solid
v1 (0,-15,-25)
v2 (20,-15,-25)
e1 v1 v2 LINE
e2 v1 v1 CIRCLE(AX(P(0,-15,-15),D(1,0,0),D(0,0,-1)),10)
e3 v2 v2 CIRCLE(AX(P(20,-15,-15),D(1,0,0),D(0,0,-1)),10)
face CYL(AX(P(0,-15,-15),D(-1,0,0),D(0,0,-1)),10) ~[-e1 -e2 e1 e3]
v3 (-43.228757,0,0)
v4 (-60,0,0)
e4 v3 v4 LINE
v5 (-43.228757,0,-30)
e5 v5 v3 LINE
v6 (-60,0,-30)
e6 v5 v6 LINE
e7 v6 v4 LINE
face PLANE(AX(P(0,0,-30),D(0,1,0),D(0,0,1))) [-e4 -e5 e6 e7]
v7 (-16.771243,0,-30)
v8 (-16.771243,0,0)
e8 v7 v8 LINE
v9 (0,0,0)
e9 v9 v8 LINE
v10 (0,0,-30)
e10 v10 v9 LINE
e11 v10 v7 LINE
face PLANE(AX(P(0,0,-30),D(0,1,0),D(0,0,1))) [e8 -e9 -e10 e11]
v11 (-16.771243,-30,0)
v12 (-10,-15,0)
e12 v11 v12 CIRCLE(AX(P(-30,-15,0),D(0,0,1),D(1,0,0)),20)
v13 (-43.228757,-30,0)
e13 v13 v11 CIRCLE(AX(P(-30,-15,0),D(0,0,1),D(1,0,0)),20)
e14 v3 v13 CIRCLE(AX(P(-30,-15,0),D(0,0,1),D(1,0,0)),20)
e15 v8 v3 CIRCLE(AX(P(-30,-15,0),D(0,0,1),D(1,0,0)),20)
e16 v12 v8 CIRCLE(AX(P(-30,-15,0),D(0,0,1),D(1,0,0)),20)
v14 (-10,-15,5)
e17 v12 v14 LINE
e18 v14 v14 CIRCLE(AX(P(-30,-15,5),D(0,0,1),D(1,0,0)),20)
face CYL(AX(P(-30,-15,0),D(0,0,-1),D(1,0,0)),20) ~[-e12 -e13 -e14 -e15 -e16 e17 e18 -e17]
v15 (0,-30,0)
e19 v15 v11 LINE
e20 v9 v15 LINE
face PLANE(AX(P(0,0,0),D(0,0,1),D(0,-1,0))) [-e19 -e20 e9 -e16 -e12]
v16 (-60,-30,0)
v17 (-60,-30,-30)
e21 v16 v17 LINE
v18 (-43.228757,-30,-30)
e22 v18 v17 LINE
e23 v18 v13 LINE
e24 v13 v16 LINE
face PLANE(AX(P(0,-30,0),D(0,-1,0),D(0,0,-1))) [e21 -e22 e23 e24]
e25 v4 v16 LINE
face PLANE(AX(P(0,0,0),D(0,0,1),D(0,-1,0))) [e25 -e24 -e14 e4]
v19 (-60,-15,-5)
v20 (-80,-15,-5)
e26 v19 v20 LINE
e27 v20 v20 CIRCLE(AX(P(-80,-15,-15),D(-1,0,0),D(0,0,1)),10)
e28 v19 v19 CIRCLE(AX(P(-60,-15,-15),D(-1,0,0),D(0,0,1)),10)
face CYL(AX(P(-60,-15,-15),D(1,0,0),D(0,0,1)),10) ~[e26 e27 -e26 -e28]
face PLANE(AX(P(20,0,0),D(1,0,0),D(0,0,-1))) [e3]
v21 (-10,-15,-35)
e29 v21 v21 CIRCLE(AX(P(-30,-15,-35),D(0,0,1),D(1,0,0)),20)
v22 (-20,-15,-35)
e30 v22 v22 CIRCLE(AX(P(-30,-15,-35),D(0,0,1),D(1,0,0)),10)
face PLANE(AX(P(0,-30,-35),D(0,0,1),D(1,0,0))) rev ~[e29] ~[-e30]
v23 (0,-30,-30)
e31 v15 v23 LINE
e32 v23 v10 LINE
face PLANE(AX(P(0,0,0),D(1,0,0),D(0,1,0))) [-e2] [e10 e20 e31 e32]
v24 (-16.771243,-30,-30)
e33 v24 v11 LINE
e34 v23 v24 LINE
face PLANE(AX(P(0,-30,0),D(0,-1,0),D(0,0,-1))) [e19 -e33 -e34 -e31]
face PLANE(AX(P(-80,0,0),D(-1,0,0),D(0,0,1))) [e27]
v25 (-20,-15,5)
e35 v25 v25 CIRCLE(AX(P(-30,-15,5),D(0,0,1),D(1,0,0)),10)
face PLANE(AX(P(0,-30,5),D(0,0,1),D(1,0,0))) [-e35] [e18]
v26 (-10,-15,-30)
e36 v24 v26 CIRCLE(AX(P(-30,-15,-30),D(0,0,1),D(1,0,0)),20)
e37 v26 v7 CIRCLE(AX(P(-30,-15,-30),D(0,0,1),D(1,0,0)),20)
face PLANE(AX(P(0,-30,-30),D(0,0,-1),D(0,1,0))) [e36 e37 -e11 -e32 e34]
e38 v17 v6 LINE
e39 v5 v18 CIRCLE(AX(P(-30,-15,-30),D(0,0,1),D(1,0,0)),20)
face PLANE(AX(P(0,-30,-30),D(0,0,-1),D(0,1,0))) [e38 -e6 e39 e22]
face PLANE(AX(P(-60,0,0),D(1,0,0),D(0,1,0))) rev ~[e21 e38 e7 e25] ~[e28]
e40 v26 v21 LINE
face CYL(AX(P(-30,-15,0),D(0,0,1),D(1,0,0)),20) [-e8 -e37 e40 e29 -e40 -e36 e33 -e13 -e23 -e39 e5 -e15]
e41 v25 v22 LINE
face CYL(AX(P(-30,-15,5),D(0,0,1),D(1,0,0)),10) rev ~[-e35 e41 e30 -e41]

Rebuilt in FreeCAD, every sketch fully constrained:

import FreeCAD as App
import Part
import Sketcher

V = App.Vector


def add_polygon(sketch, points):
    """Adds a closed chain of lines whose ends are joined by coincident constraints."""
    first, n = sketch.GeometryCount, len(points)
    for a, b in zip(points, points[1:] + points[:1]):
        sketch.addGeometry(Part.LineSegment(App.Vector(*a, 0), App.Vector(*b, 0)), False)
    for i in range(n):
        sketch.addConstraint(Sketcher.Constraint("Coincident", first + i, 2, first + (i + 1) % n, 1))

doc = App.newDocument("Part")
body = doc.addObject("PartDesign::Body", "Body")

sketch1 = body.newObject("Sketcher::SketchObject", "Sketch")
sketch1.AttachmentSupport = (doc.getObject("YZ_Plane"), [""])
sketch1.MapMode = "FlatFace"
add_polygon(sketch1, [(0, -30), (0, 0), (-30, 0), (-30, -30)])
sketch1.addConstraint(Sketcher.Constraint("Vertical", 0))
sketch1.addConstraint(Sketcher.Constraint("Horizontal", 1))
sketch1.addConstraint(Sketcher.Constraint("Vertical", 2))
sketch1.addConstraint(Sketcher.Constraint("Horizontal", 3))
sketch1.addConstraint(Sketcher.Constraint("Coincident", 0, 2, -1, 1))
sketch1.addConstraint(Sketcher.Constraint("Equal", 3, 0))
sketch1.addConstraint(Sketcher.Constraint("DistanceX", 1, 2, 1, 1, 30.0))
pad1 = body.newObject("PartDesign::Pad", "Pad")
pad1.Profile = sketch1
pad1.Length = 60
pad1.Reversed = True

sketch2 = body.newObject("Sketcher::SketchObject", "Sketch001")
sketch2.AttachmentSupport = (doc.getObject("XY_Plane"), [""])
sketch2.MapMode = "FlatFace"
sketch2.addGeometry(Part.Circle(V(-30, -15, 0), V(0, 0, 1), 20), False)
sketch2.addConstraint(Sketcher.Constraint("Diameter", 0, 40.0))
sketch2.addConstraint(Sketcher.Constraint("DistanceX", 0, 3, -1, 1, 30.0))
sketch2.addConstraint(Sketcher.Constraint("DistanceY", 0, 3, -1, 1, 15.0))
pad2 = body.newObject("PartDesign::Pad", "Pad001")
pad2.Profile = sketch2
pad2.Type = "TwoLengths"
pad2.Length = 5
pad2.Length2 = 35

sketch3 = body.newObject("Sketcher::SketchObject", "Sketch002")
sketch3.AttachmentSupport = (doc.getObject("XY_Plane"), [""])
sketch3.MapMode = "FlatFace"
sketch3.AttachmentOffset = App.Placement(V(0, 0, 5), App.Rotation())
sketch3.addGeometry(Part.Circle(V(-30, -15, 0), V(0, 0, 1), 10), False)
sketch3.addConstraint(Sketcher.Constraint("Diameter", 0, 20.0))
sketch3.addConstraint(Sketcher.Constraint("DistanceX", 0, 3, -1, 1, 30.0))
sketch3.addConstraint(Sketcher.Constraint("DistanceY", 0, 3, -1, 1, 15.0))
pocket1 = body.newObject("PartDesign::Pocket", "Pocket")
pocket1.Profile = sketch3
pocket1.Type = "ThroughAll"

sketch4 = body.newObject("Sketcher::SketchObject", "Sketch003")
sketch4.AttachmentSupport = (doc.getObject("YZ_Plane"), [""])
sketch4.MapMode = "FlatFace"
sketch4.addGeometry(Part.Circle(V(-15, -15, 0), V(0, 0, 1), 10), False)
sketch4.addConstraint(Sketcher.Constraint("Diameter", 0, 20.0))
sketch4.addConstraint(Sketcher.Constraint("DistanceX", 0, 3, -1, 1, 15.0))
sketch4.addConstraint(Sketcher.Constraint("DistanceY", 0, 3, -1, 1, 15.0))
pad3 = body.newObject("PartDesign::Pad", "Pad002")
pad3.Profile = sketch4
pad3.Length = 20

sketch5 = body.newObject("Sketcher::SketchObject", "Sketch004")
sketch5.AttachmentSupport = (doc.getObject("YZ_Plane"), [""])
sketch5.MapMode = "FlatFace"
sketch5.AttachmentOffset = App.Placement(V(0, 0, -60), App.Rotation())
sketch5.addGeometry(Part.Circle(V(-15, -15, 0), V(0, 0, 1), 10), False)
sketch5.addConstraint(Sketcher.Constraint("Diameter", 0, 20.0))
sketch5.addConstraint(Sketcher.Constraint("DistanceX", 0, 3, -1, 1, 15.0))
sketch5.addConstraint(Sketcher.Constraint("DistanceY", 0, 3, -1, 1, 15.0))
pad4 = body.newObject("PartDesign::Pad", "Pad003")
pad4.Profile = sketch5
pad4.Length = 20
pad4.Reversed = True

doc.recompute()
